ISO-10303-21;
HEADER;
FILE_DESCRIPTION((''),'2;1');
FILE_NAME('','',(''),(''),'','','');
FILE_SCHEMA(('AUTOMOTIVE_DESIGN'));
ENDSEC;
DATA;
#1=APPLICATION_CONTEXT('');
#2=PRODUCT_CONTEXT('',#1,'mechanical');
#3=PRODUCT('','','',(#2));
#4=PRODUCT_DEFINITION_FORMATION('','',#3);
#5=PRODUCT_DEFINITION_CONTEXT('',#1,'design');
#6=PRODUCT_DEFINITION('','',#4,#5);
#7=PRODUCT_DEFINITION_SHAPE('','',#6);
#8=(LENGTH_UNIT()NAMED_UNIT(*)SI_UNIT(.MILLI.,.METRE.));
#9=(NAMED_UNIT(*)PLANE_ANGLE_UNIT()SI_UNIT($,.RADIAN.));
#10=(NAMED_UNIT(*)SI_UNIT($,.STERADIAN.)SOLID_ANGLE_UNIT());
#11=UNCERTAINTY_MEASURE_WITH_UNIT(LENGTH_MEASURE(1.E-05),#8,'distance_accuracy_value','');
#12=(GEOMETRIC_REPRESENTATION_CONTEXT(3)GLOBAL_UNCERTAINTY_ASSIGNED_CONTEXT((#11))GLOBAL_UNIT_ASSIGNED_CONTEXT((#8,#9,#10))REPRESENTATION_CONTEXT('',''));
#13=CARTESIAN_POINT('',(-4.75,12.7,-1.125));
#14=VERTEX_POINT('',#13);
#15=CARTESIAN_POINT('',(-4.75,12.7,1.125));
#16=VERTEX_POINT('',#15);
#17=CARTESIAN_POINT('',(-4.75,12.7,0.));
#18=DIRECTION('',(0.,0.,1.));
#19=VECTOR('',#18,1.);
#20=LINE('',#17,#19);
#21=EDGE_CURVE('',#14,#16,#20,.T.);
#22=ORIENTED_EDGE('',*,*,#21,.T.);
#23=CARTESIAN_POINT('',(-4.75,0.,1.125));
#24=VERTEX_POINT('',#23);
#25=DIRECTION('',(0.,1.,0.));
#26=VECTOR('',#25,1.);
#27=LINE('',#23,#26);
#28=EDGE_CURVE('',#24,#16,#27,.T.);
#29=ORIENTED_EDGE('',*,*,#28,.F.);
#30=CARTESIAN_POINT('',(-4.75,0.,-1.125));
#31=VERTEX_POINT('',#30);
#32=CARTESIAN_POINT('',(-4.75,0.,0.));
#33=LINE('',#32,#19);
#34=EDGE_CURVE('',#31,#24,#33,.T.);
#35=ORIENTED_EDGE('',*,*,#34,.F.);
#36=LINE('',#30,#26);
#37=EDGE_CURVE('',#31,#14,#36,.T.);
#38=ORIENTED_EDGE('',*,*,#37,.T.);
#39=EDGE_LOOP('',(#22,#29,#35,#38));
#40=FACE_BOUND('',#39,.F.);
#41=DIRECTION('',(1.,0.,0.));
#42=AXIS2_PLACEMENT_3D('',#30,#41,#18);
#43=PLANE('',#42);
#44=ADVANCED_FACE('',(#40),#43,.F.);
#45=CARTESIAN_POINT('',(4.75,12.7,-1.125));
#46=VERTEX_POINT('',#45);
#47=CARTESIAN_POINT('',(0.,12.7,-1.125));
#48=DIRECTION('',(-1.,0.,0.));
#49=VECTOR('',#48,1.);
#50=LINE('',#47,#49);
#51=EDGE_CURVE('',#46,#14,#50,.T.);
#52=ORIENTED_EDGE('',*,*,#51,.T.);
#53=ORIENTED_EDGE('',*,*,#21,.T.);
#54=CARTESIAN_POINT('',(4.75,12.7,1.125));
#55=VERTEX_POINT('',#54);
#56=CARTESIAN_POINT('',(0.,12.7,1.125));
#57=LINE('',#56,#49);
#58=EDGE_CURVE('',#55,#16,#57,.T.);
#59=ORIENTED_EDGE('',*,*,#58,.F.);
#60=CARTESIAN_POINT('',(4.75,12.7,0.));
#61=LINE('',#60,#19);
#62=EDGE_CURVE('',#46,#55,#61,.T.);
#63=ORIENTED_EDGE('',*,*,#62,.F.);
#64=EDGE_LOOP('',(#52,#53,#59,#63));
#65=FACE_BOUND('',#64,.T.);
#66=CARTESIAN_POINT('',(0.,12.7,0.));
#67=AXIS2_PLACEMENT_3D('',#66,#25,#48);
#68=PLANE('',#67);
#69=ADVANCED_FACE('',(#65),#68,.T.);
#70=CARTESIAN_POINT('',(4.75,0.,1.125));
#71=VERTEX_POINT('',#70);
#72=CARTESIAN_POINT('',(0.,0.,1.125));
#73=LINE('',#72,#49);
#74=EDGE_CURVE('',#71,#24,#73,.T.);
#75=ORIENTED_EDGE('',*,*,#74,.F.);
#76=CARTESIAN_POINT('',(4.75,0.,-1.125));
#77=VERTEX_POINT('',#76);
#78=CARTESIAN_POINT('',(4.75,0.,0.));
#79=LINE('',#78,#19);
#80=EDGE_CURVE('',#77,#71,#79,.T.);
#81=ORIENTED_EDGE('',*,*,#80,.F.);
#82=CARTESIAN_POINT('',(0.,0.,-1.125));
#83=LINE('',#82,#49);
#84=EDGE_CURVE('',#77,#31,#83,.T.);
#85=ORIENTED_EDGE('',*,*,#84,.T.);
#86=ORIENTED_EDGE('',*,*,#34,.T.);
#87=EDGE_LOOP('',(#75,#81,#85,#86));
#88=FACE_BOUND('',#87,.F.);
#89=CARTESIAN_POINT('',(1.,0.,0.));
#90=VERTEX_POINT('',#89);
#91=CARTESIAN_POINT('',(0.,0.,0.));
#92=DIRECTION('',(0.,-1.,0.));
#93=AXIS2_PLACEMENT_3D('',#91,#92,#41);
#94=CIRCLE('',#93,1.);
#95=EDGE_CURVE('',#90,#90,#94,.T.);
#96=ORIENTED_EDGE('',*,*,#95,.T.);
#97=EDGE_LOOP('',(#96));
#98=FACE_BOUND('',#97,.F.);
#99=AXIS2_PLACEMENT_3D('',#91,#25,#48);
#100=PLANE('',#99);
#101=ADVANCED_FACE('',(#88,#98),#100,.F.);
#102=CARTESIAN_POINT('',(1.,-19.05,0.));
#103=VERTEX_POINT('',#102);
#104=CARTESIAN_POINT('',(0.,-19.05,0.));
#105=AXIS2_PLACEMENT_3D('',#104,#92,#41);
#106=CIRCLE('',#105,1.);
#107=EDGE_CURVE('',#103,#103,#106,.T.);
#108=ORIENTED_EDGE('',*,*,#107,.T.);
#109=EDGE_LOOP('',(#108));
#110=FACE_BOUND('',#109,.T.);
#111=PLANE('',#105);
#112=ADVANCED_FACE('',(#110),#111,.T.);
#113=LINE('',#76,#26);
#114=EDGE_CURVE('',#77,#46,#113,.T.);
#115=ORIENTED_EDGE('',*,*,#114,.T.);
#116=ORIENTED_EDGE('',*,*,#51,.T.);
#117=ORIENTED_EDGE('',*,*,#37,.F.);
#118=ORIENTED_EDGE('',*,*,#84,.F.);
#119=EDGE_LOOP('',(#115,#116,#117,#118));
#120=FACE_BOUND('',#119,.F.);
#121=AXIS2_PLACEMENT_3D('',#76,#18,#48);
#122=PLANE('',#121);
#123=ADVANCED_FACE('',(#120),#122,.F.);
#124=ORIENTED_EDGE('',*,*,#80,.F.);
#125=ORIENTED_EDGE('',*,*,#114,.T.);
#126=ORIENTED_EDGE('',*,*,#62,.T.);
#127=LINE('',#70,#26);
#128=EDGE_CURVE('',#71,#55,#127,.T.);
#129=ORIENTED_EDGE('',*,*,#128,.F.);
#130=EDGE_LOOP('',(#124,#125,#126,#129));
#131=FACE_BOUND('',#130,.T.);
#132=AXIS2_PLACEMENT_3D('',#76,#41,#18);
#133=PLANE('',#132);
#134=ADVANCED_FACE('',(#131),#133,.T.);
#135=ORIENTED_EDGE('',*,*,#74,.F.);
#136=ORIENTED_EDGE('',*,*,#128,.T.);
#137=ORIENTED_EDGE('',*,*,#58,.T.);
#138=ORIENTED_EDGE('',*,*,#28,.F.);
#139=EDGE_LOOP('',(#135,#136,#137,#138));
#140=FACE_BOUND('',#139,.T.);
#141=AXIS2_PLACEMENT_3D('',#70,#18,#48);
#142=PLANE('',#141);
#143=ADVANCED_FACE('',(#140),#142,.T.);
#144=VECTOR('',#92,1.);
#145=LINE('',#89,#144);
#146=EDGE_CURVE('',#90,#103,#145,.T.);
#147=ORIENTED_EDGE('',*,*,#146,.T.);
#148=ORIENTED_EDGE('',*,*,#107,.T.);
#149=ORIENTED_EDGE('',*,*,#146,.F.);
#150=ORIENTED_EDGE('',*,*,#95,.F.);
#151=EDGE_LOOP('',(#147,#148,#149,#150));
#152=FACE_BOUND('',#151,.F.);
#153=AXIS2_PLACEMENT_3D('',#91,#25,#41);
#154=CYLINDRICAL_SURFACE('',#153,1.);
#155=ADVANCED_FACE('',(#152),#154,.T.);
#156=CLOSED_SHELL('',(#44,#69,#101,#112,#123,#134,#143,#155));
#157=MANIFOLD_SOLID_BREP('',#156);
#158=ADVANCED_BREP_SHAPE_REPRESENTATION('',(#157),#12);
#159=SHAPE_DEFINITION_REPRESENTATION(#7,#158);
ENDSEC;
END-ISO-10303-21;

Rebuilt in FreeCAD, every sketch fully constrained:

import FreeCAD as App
import Part
import Sketcher
from FreeCAD import Vector


def add_polygon(sketch, points):
    """Adds a closed chain of lines whose ends are joined by coincident constraints."""
    first, n = sketch.GeometryCount, len(points)
    for a, b in zip(points, points[1:] + points[:1]):
        sketch.addGeometry(Part.LineSegment(App.Vector(*a, 0), App.Vector(*b, 0)), False)
    for i in range(n):
        sketch.addConstraint(Sketcher.Constraint("Coincident", first + i, 2, first + (i + 1) % n, 1))

doc = App.newDocument("Part")
body = doc.addObject("PartDesign::Body", "Body")

# Sketch on XZ plane
sketch1 = doc.addObject("Sketcher::SketchObject", "Sketch")
body.addObject(sketch1)
sketch1.AttachmentSupport = (doc.XZ_Plane, [""])
sketch1.MapMode = "FlatFace"
sketch1.addGeometry(Part.Circle(Vector(0, 0, 0), Vector(0, 0, 1), 1), False)
sketch1.addConstraint([
    Sketcher.Constraint("Coincident", 0, 3, -1, 1),
    Sketcher.Constraint("Diameter", 0, 2.0),
])
pad1 = doc.addObject("PartDesign::Pad", "Pad")
body.addObject(pad1)
pad1.Profile = sketch1
pad1.Length = 19.05

# Sketch on XZ plane
sketch2 = doc.addObject("Sketcher::SketchObject", "Sketch001")
body.addObject(sketch2)
sketch2.AttachmentSupport = (doc.XZ_Plane, [""])
sketch2.MapMode = "FlatFace"
add_polygon(sketch2, [(4.8, 1.1), (4.8, -1.1), (-4.8, -1.1), (-4.8, 1.1)])  # lines 0-3
sketch2.addConstraint([
    Sketcher.Constraint("Vertical", 0),
    Sketcher.Constraint("Horizontal", 1),
    Sketcher.Constraint("Vertical", 2),
    Sketcher.Constraint("Horizontal", 3),
    Sketcher.Constraint("Symmetric", 0, 2, 2, 2, -1, 1),
    Sketcher.Constraint("DistanceX", 1, 2, 1, 1, 9.5),
    Sketcher.Constraint("DistanceY", 0, 2, 0, 1, 2.25),
])
pad2 = doc.addObject("PartDesign::Pad", "Pad001")
body.addObject(pad2)
pad2.Profile = sketch2
pad2.Length = 12.7
pad2.Reversed = True

doc.recompute()
